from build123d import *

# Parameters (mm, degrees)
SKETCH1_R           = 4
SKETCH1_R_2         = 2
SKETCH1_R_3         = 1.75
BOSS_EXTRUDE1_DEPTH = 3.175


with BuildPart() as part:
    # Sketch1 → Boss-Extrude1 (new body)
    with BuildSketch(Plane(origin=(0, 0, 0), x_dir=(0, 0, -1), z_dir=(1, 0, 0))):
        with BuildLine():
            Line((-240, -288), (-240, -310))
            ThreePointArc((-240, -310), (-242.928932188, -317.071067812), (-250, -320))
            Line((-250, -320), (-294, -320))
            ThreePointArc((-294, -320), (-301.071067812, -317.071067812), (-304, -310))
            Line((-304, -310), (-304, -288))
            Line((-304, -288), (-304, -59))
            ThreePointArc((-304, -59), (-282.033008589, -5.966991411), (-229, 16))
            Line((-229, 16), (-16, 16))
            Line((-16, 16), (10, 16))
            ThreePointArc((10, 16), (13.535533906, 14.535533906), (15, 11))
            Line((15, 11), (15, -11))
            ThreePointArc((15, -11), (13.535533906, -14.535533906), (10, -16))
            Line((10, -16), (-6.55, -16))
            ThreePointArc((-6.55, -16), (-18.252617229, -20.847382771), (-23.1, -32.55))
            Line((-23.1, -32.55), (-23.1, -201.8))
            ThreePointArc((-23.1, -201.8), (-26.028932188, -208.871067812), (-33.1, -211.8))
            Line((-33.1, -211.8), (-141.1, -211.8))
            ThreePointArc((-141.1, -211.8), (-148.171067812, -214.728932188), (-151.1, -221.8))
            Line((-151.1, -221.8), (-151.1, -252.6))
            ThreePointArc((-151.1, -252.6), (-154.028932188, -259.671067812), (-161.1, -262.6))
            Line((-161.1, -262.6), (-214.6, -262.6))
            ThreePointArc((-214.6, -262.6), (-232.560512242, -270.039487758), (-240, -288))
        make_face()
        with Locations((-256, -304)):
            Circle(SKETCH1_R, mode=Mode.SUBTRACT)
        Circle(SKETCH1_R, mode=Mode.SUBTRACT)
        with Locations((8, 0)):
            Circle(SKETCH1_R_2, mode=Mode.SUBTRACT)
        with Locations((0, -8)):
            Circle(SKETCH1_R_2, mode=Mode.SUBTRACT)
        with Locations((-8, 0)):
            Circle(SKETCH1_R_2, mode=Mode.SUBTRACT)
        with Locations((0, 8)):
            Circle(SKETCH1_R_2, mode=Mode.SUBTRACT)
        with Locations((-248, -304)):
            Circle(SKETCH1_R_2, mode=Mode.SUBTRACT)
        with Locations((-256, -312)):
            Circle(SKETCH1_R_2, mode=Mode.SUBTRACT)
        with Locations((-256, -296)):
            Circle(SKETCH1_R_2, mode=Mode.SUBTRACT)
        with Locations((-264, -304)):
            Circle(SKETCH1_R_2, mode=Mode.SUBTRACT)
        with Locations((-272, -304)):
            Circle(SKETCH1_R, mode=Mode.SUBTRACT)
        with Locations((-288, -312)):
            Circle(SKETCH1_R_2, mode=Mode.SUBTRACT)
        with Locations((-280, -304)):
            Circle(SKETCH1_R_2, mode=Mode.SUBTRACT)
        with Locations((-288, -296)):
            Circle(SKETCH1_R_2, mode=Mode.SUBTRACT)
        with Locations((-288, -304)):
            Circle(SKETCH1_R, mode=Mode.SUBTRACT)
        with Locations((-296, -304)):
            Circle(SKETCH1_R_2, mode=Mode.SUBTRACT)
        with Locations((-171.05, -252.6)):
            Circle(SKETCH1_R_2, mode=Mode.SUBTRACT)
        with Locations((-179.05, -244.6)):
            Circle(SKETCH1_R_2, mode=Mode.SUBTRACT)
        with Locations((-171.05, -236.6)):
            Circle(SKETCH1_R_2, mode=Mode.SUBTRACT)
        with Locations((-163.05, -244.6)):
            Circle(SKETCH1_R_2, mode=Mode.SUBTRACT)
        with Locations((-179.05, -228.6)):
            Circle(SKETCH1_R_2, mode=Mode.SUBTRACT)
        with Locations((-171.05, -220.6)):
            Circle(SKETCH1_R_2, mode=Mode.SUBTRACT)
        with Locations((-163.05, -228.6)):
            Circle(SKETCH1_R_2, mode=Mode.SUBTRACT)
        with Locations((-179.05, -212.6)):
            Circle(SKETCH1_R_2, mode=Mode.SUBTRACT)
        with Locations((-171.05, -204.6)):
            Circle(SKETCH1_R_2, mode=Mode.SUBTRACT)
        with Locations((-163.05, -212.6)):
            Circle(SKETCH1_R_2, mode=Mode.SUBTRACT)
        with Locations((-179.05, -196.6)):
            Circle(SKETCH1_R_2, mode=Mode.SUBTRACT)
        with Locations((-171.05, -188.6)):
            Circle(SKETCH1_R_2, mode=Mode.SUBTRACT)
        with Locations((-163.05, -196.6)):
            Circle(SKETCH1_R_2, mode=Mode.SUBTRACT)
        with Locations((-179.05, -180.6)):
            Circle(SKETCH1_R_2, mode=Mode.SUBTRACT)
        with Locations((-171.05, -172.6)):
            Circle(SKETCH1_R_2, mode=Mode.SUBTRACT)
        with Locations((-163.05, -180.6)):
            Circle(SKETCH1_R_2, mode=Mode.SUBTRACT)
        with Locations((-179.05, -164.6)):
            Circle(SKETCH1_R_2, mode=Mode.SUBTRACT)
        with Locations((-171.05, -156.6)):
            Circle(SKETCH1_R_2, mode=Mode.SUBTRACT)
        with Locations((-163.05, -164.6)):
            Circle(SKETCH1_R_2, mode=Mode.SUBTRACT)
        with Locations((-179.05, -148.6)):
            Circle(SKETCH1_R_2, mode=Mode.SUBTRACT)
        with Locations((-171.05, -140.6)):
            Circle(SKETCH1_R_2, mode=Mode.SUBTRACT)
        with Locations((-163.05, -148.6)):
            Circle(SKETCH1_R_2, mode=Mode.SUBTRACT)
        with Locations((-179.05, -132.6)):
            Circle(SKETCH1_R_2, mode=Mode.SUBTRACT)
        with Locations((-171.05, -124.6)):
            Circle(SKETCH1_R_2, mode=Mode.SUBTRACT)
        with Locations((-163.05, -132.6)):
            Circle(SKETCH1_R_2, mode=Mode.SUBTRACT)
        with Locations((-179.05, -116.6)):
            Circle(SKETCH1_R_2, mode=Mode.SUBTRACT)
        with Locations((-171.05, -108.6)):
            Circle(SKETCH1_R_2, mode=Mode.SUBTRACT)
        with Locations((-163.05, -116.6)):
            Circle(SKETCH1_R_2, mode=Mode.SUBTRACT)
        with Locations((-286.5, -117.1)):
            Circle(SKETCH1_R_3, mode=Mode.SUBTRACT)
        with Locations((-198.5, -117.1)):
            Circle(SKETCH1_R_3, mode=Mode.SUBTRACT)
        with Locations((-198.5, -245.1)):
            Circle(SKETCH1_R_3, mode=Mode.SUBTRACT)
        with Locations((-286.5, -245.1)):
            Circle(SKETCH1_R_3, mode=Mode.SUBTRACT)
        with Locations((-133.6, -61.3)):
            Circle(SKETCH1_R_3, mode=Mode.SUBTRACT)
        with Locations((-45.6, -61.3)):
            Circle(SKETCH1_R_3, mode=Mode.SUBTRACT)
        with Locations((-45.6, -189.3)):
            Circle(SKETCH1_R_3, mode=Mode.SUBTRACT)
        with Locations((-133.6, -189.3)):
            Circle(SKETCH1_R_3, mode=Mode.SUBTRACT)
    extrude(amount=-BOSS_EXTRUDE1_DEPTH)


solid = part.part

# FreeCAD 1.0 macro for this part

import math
import FreeCAD as App
import Part
import Sketcher
Q = App.Units.Quantity

doc = App.newDocument("Part")
params = doc.addObject("Spreadsheet::Sheet", "Params")
for row, (alias, value) in enumerate([
    ("sketch1_diameter", "4 mm"),
    ("sketch1_diameter2", "8 mm"),
    ("sketch1_radius", "10 mm"),
    ("sketch1_radius2", "5 mm"),
    ("sketch1_radius3", "75 mm"),
    ("pad1_length", "3.175 mm"),
], start=1):
    params.set(f"A{row}", alias)
    params.set(f"B{row}", "=" + value)
    params.setAlias(f"B{row}", alias)

body = doc.addObject("PartDesign::Body", "Body")

# Sketch on YZ plane
sketch1 = body.newObject("Sketcher::SketchObject", "Sketch")
sketch1.AttachmentSupport = (doc.getObject("YZ_Plane"), [""])
sketch1.MapMode = "FlatFace"
sketch1.addGeometry([
    Part.LineSegment(App.Vector(-310, 240, 0), App.Vector(-288, 240, 0)),  # 0
    Part.ArcOfCircle(Part.Circle(App.Vector(-288, 214.6, 0), App.Vector(0, 0, 1), 25.4), math.radians(0), math.radians(90)),  # 1
    Part.LineSegment(App.Vector(-262.6, 214.6, 0), App.Vector(-262.6, 161.1, 0)),  # 2
    Part.ArcOfCircle(Part.Circle(App.Vector(-252.6, 161.1, 0), App.Vector(0, 0, 1), 10), math.radians(180), math.radians(270)),  # 3
    Part.LineSegment(App.Vector(-252.6, 151.1, 0), App.Vector(-221.8, 151.1, 0)),  # 4
    Part.ArcOfCircle(Part.Circle(App.Vector(-221.8, 141.1, 0), App.Vector(0, 0, 1), 10), math.radians(0), math.radians(90)),  # 5
    Part.LineSegment(App.Vector(-211.8, 141.1, 0), App.Vector(-211.8, 33.1, 0)),  # 6
    Part.ArcOfCircle(Part.Circle(App.Vector(-201.8, 33.1, 0), App.Vector(0, 0, 1), 10), math.radians(180), math.radians(270)),  # 7
    Part.LineSegment(App.Vector(-201.8, 23.1, 0), App.Vector(-32.5, 23.1, 0)),  # 8
    Part.ArcOfCircle(Part.Circle(App.Vector(-32.5, 6.6, 0), App.Vector(0, 0, 1), 16.5), math.radians(0), math.radians(90)),  # 9
    Part.LineSegment(App.Vector(-16, 6.5, 0), App.Vector(-16, -10, 0)),  # 10
    Part.ArcOfCircle(Part.Circle(App.Vector(-11, -10, 0), App.Vector(0, 0, 1), 5), math.radians(180), math.radians(270)),  # 11
    Part.LineSegment(App.Vector(-11, -15, 0), App.Vector(11, -15, 0)),  # 12
    Part.ArcOfCircle(Part.Circle(App.Vector(11, -10, 0), App.Vector(0, 0, 1), 5), math.radians(-90), math.radians(0)),  # 13
    Part.LineSegment(App.Vector(16, -10, 0), App.Vector(16, 229, 0)),  # 14
    Part.ArcOfCircle(Part.Circle(App.Vector(-59, 229, 0), App.Vector(0, 0, 1), 75), math.radians(0), math.radians(90)),  # 15
    Part.LineSegment(App.Vector(-59, 304, 0), App.Vector(-310, 304, 0)),  # 16
    Part.ArcOfCircle(Part.Circle(App.Vector(-310, 294, 0), App.Vector(0, 0, 1), 10), math.radians(90), math.radians(180)),  # 17
    Part.LineSegment(App.Vector(-320, 294, 0), App.Vector(-320, 250, 0)),  # 18
    Part.ArcOfCircle(Part.Circle(App.Vector(-310, 250, 0), App.Vector(0, 0, 1), 10), math.radians(180), math.radians(270)),  # 19
    Part.Circle(App.Vector(-189.3, 45.6, 0), App.Vector(0, 0, 1), 1.8),  # 20
    Part.Circle(App.Vector(-189.3, 133.6, 0), App.Vector(0, 0, 1), 1.8),  # 21
    Part.Circle(App.Vector(-244.6, 163.1, 0), App.Vector(0, 0, 1), 2),  # 22
    Part.Circle(App.Vector(-252.6, 171.1, 0), App.Vector(0, 0, 1), 2),  # 23
    Part.Circle(App.Vector(-244.6, 179.1, 0), App.Vector(0, 0, 1), 2),  # 24
    Part.Circle(App.Vector(-236.6, 171.1, 0), App.Vector(0, 0, 1), 2),  # 25
    Part.Circle(App.Vector(-245.1, 198.5, 0), App.Vector(0, 0, 1), 1.8),  # 26
    Part.Circle(App.Vector(-304, 248, 0), App.Vector(0, 0, 1), 2),  # 27
    Part.Circle(App.Vector(-312, 256, 0), App.Vector(0, 0, 1), 2),  # 28
    Part.Circle(App.Vector(-304, 256, 0), App.Vector(0, 0, 1), 4),  # 29
    Part.Circle(App.Vector(-296, 256, 0), App.Vector(0, 0, 1), 2),  # 30
    Part.Circle(App.Vector(-304, 264, 0), App.Vector(0, 0, 1), 2),  # 31
    Part.Circle(App.Vector(-304, 272, 0), App.Vector(0, 0, 1), 4),  # 32
    Part.Circle(App.Vector(-312, 288, 0), App.Vector(0, 0, 1), 2),  # 33
    Part.Circle(App.Vector(-304, 280, 0), App.Vector(0, 0, 1), 2),  # 34
    Part.Circle(App.Vector(-304, 288, 0), App.Vector(0, 0, 1), 4),  # 35
    Part.Circle(App.Vector(-304, 296, 0), App.Vector(0, 0, 1), 2),  # 36
    Part.Circle(App.Vector(-296, 288, 0), App.Vector(0, 0, 1), 2),  # 37
    Part.Circle(App.Vector(-245.1, 286.5, 0), App.Vector(0, 0, 1), 1.8),  # 38
    Part.Circle(App.Vector(-228.6, 163.1, 0), App.Vector(0, 0, 1), 2),  # 39
    Part.Circle(App.Vector(-228.6, 179.1, 0), App.Vector(0, 0, 1), 2),  # 40
    Part.Circle(App.Vector(-220.6, 171.1, 0), App.Vector(0, 0, 1), 2),  # 41
    Part.Circle(App.Vector(-212.6, 163.1, 0), App.Vector(0, 0, 1), 2),  # 42
    Part.Circle(App.Vector(-196.6, 163.1, 0), App.Vector(0, 0, 1), 2),  # 43
    Part.Circle(App.Vector(-204.6, 171.1, 0), App.Vector(0, 0, 1), 2),  # 44
    Part.Circle(App.Vector(-212.6, 179.1, 0), App.Vector(0, 0, 1), 2),  # 45
    Part.Circle(App.Vector(-196.6, 179.1, 0), App.Vector(0, 0, 1), 2),  # 46
    Part.Circle(App.Vector(-180.6, 163.1, 0), App.Vector(0, 0, 1), 2),  # 47
    Part.Circle(App.Vector(-188.6, 171.1, 0), App.Vector(0, 0, 1), 2),  # 48
    Part.Circle(App.Vector(-172.6, 171.1, 0), App.Vector(0, 0, 1), 2),  # 49
    Part.Circle(App.Vector(-180.6, 179.1, 0), App.Vector(0, 0, 1), 2),  # 50
    Part.Circle(App.Vector(-164.6, 163.1, 0), App.Vector(0, 0, 1), 2),  # 51
    Part.Circle(App.Vector(-164.6, 179.1, 0), App.Vector(0, 0, 1), 2),  # 52
    Part.Circle(App.Vector(-156.6, 171.1, 0), App.Vector(0, 0, 1), 2),  # 53
    Part.Circle(App.Vector(-61.3, 45.6, 0), App.Vector(0, 0, 1), 1.8),  # 54
    Part.Circle(App.Vector(-8, 0, 0), App.Vector(0, 0, 1), 2),  # 55
    Part.Circle(App.Vector(0, -8, 0), App.Vector(0, 0, 1), 2),  # 56
    Part.Circle(App.Vector(0, 0, 0), App.Vector(0, 0, 1), 4),  # 57
    Part.Circle(App.Vector(0, 8, 0), App.Vector(0, 0, 1), 2),  # 58
    Part.Circle(App.Vector(8, 0, 0), App.Vector(0, 0, 1), 2),  # 59
    Part.Circle(App.Vector(-61.3, 133.6, 0), App.Vector(0, 0, 1), 1.8),  # 60
    Part.Circle(App.Vector(-148.6, 163.1, 0), App.Vector(0, 0, 1), 2),  # 61
    Part.Circle(App.Vector(-132.6, 163.1, 0), App.Vector(0, 0, 1), 2),  # 62
    Part.Circle(App.Vector(-148.6, 179.1, 0), App.Vector(0, 0, 1), 2),  # 63
    Part.Circle(App.Vector(-140.6, 171.1, 0), App.Vector(0, 0, 1), 2),  # 64
    Part.Circle(App.Vector(-132.6, 179.1, 0), App.Vector(0, 0, 1), 2),  # 65
    Part.Circle(App.Vector(-116.6, 163.1, 0), App.Vector(0, 0, 1), 2),  # 66
    Part.Circle(App.Vector(-124.6, 171.1, 0), App.Vector(0, 0, 1), 2),  # 67
    Part.Circle(App.Vector(-116.6, 179.1, 0), App.Vector(0, 0, 1), 2),  # 68
    Part.Circle(App.Vector(-117.1, 198.5, 0), App.Vector(0, 0, 1), 1.8),  # 69
    Part.Circle(App.Vector(-108.6, 171.1, 0), App.Vector(0, 0, 1), 2),  # 70
    Part.Circle(App.Vector(-117.1, 286.5, 0), App.Vector(0, 0, 1), 1.8),  # 71
], False)
sketch1.addConstraint([
    Sketcher.Constraint("Tangent", 0, 2, 1, 2),
    Sketcher.Constraint("Tangent", 1, 1, 2, 1),
    Sketcher.Constraint("Tangent", 2, 2, 3, 1),
    Sketcher.Constraint("Tangent", 3, 2, 4, 1),
    Sketcher.Constraint("Tangent", 4, 2, 5, 2),
    Sketcher.Constraint("Tangent", 5, 1, 6, 1),
    Sketcher.Constraint("Tangent", 6, 2, 7, 1),
    Sketcher.Constraint("Tangent", 7, 2, 8, 1),
    Sketcher.Constraint("Tangent", 8, 2, 9, 2),
    Sketcher.Constraint("Tangent", 9, 1, 10, 1),
    Sketcher.Constraint("Tangent", 10, 2, 11, 1),
    Sketcher.Constraint("Tangent", 11, 2, 12, 1),
    Sketcher.Constraint("Tangent", 12, 2, 13, 1),
    Sketcher.Constraint("Tangent", 13, 2, 14, 1),
    Sketcher.Constraint("Tangent", 14, 2, 15, 1),
    Sketcher.Constraint("Tangent", 15, 2, 16, 1),
    Sketcher.Constraint("Tangent", 16, 2, 17, 1),
    Sketcher.Constraint("Tangent", 17, 2, 18, 1),
    Sketcher.Constraint("Tangent", 18, 2, 19, 1),
    Sketcher.Constraint("Tangent", 19, 2, 0, 1),
    Sketcher.Constraint("Horizontal", 0),
    Sketcher.Constraint("Vertical", 2),
    Sketcher.Constraint("Horizontal", 4),
    Sketcher.Constraint("Vertical", 6),
    Sketcher.Constraint("Horizontal", 8),
    Sketcher.Constraint("Vertical", 10),
    Sketcher.Constraint("Horizontal", 12),
    Sketcher.Constraint("Vertical", 14),
    Sketcher.Constraint("Horizontal", 16),
    Sketcher.Constraint("Vertical", 18),
    Sketcher.Constraint("Coincident", 57, 3, -1, 1),
    Sketcher.Constraint("Equal", 3, 5),
    Sketcher.Constraint("Equal", 5, 7),
    Sketcher.Constraint("Equal", 11, 13),
    Sketcher.Constraint("Equal", 7, 17),
    Sketcher.Constraint("Equal", 17, 19),
    Sketcher.Constraint("Equal", 20, 21),
    Sketcher.Constraint("Equal", 22, 23),
    Sketcher.Constraint("Equal", 23, 24),
    Sketcher.Constraint("Equal", 24, 25),
    Sketcher.Constraint("Equal", 21, 26),
    Sketcher.Constraint("Equal", 25, 27),
    Sketcher.Constraint("Equal", 27, 28),
    Sketcher.Constraint("Equal", 28, 30),
    Sketcher.Constraint("Equal", 30, 31),
    Sketcher.Constraint("Equal", 29, 32),
    Sketcher.Constraint("Equal", 31, 33),
    Sketcher.Constraint("Equal", 33, 34),
    Sketcher.Constraint("Equal", 32, 35),
    Sketcher.Constraint("Equal", 34, 36),
    Sketcher.Constraint("Equal", 36, 37),
    Sketcher.Constraint("Equal", 26, 38),
    Sketcher.Constraint("Equal", 37, 39),
    Sketcher.Constraint("Equal", 39, 40),
    Sketcher.Constraint("Equal", 40, 41),
    Sketcher.Constraint("Equal", 41, 42),
    Sketcher.Constraint("Equal", 42, 43),
    Sketcher.Constraint("Equal", 43, 44),
    Sketcher.Constraint("Equal", 44, 45),
    Sketcher.Constraint("Equal", 45, 46),
    Sketcher.Constraint("Equal", 46, 47),
    Sketcher.Constraint("Equal", 47, 48),
    Sketcher.Constraint("Equal", 48, 49),
    Sketcher.Constraint("Equal", 49, 50),
    Sketcher.Constraint("Equal", 50, 51),
    Sketcher.Constraint("Equal", 51, 52),
    Sketcher.Constraint("Equal", 52, 53),
    Sketcher.Constraint("Equal", 38, 54),
    Sketcher.Constraint("Equal", 53, 55),
    Sketcher.Constraint("Equal", 55, 56),
    Sketcher.Constraint("Equal", 35, 57),
    Sketcher.Constraint("Equal", 56, 58),
    Sketcher.Constraint("Equal", 58, 59),
    Sketcher.Constraint("Equal", 54, 60),
    Sketcher.Constraint("Equal", 59, 61),
    Sketcher.Constraint("Equal", 61, 62),
    Sketcher.Constraint("Equal", 62, 63),
    Sketcher.Constraint("Equal", 63, 64),
    Sketcher.Constraint("Equal", 64, 65),
    Sketcher.Constraint("Equal", 65, 66),
    Sketcher.Constraint("Equal", 66, 67),
    Sketcher.Constraint("Equal", 67, 68),
    Sketcher.Constraint("Equal", 60, 69),
    Sketcher.Constraint("Equal", 68, 70),
    Sketcher.Constraint("Equal", 69, 71),
    Sketcher.Constraint("Symmetric", 56, 3, 58, 3, -1, 1),
    Sketcher.Constraint("Symmetric", 55, 3, 59, 3, -1, 1),
    Sketcher.Constraint("PointOnObject", 55, 3, -1),
    Sketcher.Constraint("PointOnObject", 56, 3, -2),
    Sketcher.Constraint("Horizontal", 23, 3, 25, 3),
    Sketcher.Constraint("Horizontal", 28, 3, 29, 3),
    Sketcher.Constraint("Horizontal", 29, 3, 30, 3),
    Sketcher.Constraint("Horizontal", 33, 3, 35, 3),
    Sketcher.Constraint("Horizontal", 35, 3, 37, 3),
    Sketcher.Constraint("Horizontal", 22, 3, 39, 3),
    Sketcher.Constraint("Horizontal", 24, 3, 40, 3),
    Sketcher.Constraint("Horizontal", 25, 3, 41, 3),
    Sketcher.Constraint("Horizontal", 39, 3, 42, 3),
    Sketcher.Constraint("Horizontal", 42, 3, 43, 3),
    Sketcher.Constraint("Horizontal", 41, 3, 44, 3),
    Sketcher.Constraint("Horizontal", 40, 3, 45, 3),
    Sketcher.Constraint("Horizontal", 45, 3, 46, 3),
    Sketcher.Constraint("Horizontal", 43, 3, 47, 3),
    Sketcher.Constraint("Horizontal", 44, 3, 48, 3),
    Sketcher.Constraint("Horizontal", 48, 3, 49, 3),
    Sketcher.Constraint("Horizontal", 46, 3, 50, 3),
    Sketcher.Constraint("Horizontal", 47, 3, 51, 3),
    Sketcher.Constraint("Horizontal", 50, 3, 52, 3),
    Sketcher.Constraint("Horizontal", 49, 3, 53, 3),
    Sketcher.Constraint("Horizontal", 20, 3, 54, 3),
    Sketcher.Constraint("Horizontal", 21, 3, 60, 3),
    Sketcher.Constraint("Horizontal", 51, 3, 61, 3),
    Sketcher.Constraint("Horizontal", 61, 3, 62, 3),
    Sketcher.Constraint("Horizontal", 52, 3, 63, 3),
    Sketcher.Constraint("Horizontal", 53, 3, 64, 3),
    Sketcher.Constraint("Horizontal", 63, 3, 65, 3),
    Sketcher.Constraint("Horizontal", 62, 3, 66, 3),
    Sketcher.Constraint("Horizontal", 64, 3, 67, 3),
    Sketcher.Constraint("Horizontal", 65, 3, 68, 3),
    Sketcher.Constraint("Horizontal", 26, 3, 69, 3),
    Sketcher.Constraint("Horizontal", 67, 3, 70, 3),
    Sketcher.Constraint("Horizontal", 38, 3, 71, 3),
    Sketcher.Constraint("Vertical", 20, 3, 21, 3),
    Sketcher.Constraint("Vertical", 3, 3, 23, 3),
    Sketcher.Constraint("Vertical", 22, 3, 24, 3),
    Sketcher.Constraint("Vertical", 27, 3, 29, 3),
    Sketcher.Constraint("Vertical", 29, 3, 31, 3),
    Sketcher.Constraint("Vertical", 31, 3, 32, 3),
    Sketcher.Constraint("Vertical", 28, 3, 33, 3),
    Sketcher.Constraint("Vertical", 32, 3, 34, 3),
    Sketcher.Constraint("Vertical", 34, 3, 35, 3),
    Sketcher.Constraint("Vertical", 35, 3, 36, 3),
    Sketcher.Constraint("Vertical", 30, 3, 37, 3),
    Sketcher.Constraint("Vertical", 26, 3, 38, 3),
    Sketcher.Constraint("Vertical", 39, 3, 40, 3),
    Sketcher.Constraint("Vertical", 42, 3, 45, 3),
    Sketcher.Constraint("Vertical", 43, 3, 46, 3),
    Sketcher.Constraint("Vertical", 47, 3, 50, 3),
    Sketcher.Constraint("Vertical", 51, 3, 52, 3),
    Sketcher.Constraint("Vertical", 54, 3, 60, 3),
    Sketcher.Constraint("Vertical", 61, 3, 63, 3),
    Sketcher.Constraint("Vertical", 62, 3, 65, 3),
    Sketcher.Constraint("Vertical", 66, 3, 68, 3),
    Sketcher.Constraint("Vertical", 69, 3, 71, 3),
    Sketcher.Constraint("Equal", 0, 12),
    Sketcher.Constraint("Diameter", 22, Q("4 mm")),
    Sketcher.Constraint("Diameter", 29, Q("8 mm")),
    Sketcher.Constraint("Radius", 3, Q("10 mm")),
    Sketcher.Constraint("Radius", 11, Q("5 mm")),
    Sketcher.Constraint("Radius", 15, Q("75 mm")),
    Sketcher.Constraint("Diameter", 20, Q("3.5 mm")),
    Sketcher.Constraint("Radius", 1, Q("25.4 mm")),
    Sketcher.Constraint("DistanceX", 0, 1, 0, 2, Q("22 mm")),
    Sketcher.Constraint("DistanceX", 16, 2, 16, 1, Q("251 mm")),
    Sketcher.Constraint("DistanceY", 6, 2, 6, 1, Q("108 mm")),
    Sketcher.Constraint("DistanceY", 14, 1, 14, 2, Q("239 mm")),
    Sketcher.Constraint("DistanceY", 18, 2, 18, 1, Q("44 mm")),
    Sketcher.Constraint("Radius", 9, Q("16.55 mm")),
    Sketcher.Constraint("DistanceX", 4, 1, 4, 2, Q("30.8 mm")),
    Sketcher.Constraint("DistanceY", 2, 2, 2, 1, Q("53.5 mm")),
    Sketcher.Constraint("DistanceX", 1, 3, -1, 1, Q("288 mm")),
    Sketcher.Constraint("DistanceY", 11, 3, -1, 1, Q("10 mm")),
    Sketcher.Constraint("DistanceX", 27, 3, -1, 1, Q("304 mm")),
    Sketcher.Constraint("DistanceY", -1, 1, 27, 3, Q("248 mm")),
    Sketcher.Constraint("DistanceX", 28, 3, -1, 1, Q("312 mm")),
    Sketcher.Constraint("DistanceY", -1, 1, 28, 3, Q("256 mm")),
    Sketcher.Constraint("DistanceX", 30, 3, -1, 1, Q("296 mm")),
    Sketcher.Constraint("DistanceY", -1, 1, 31, 3, Q("264 mm")),
    Sketcher.Constraint("DistanceY", -1, 1, 32, 3, Q("272 mm")),
    Sketcher.Constraint("DistanceY", -1, 1, 33, 3, Q("288 mm")),
    Sketcher.Constraint("DistanceY", -1, 1, 34, 3, Q("280 mm")),
    Sketcher.Constraint("DistanceY", -1, 1, 36, 3, Q("296 mm")),
    Sketcher.Constraint("DistanceX", 55, 3, -1, 1, Q("8 mm")),
    Sketcher.Constraint("DistanceY", 56, 3, -1, 1, Q("8 mm")),
    Sketcher.Constraint("DistanceX", 20, 3, -1, 1, Q("189.3 mm")),
    Sketcher.Constraint("DistanceY", -1, 1, 20, 3, Q("45.6 mm")),
    Sketcher.Constraint("DistanceY", -1, 1, 21, 3, Q("133.6 mm")),
    Sketcher.Constraint("DistanceX", 22, 3, -1, 1, Q("244.6 mm")),
    Sketcher.Constraint("DistanceX", 25, 3, -1, 1, Q("236.6 mm")),
    Sketcher.Constraint("DistanceX", 26, 3, -1, 1, Q("245.1 mm")),
    Sketcher.Constraint("DistanceY", -1, 1, 26, 3, Q("198.5 mm")),
    Sketcher.Constraint("DistanceY", -1, 1, 38, 3, Q("286.5 mm")),
    Sketcher.Constraint("DistanceX", 39, 3, -1, 1, Q("228.6 mm")),
    Sketcher.Constraint("DistanceX", 41, 3, -1, 1, Q("220.6 mm")),
    Sketcher.Constraint("DistanceX", 42, 3, -1, 1, Q("212.6 mm")),
    Sketcher.Constraint("DistanceX", 43, 3, -1, 1, Q("196.6 mm")),
    Sketcher.Constraint("DistanceX", 44, 3, -1, 1, Q("204.6 mm")),
    Sketcher.Constraint("DistanceX", 47, 3, -1, 1, Q("180.6 mm")),
    Sketcher.Constraint("DistanceX", 48, 3, -1, 1, Q("188.6 mm")),
    Sketcher.Constraint("DistanceX", 49, 3, -1, 1, Q("172.6 mm")),
    Sketcher.Constraint("DistanceX", 51, 3, -1, 1, Q("164.6 mm")),
    Sketcher.Constraint("DistanceX", 53, 3, -1, 1, Q("156.6 mm")),
    Sketcher.Constraint("DistanceX", 54, 3, -1, 1, Q("61.3 mm")),
    Sketcher.Constraint("DistanceX", 61, 3, -1, 1, Q("148.6 mm")),
    Sketcher.Constraint("DistanceX", 62, 3, -1, 1, Q("132.6 mm")),
    Sketcher.Constraint("DistanceX", 64, 3, -1, 1, Q("140.6 mm")),
    Sketcher.Constraint("DistanceX", 66, 3, -1, 1, Q("116.6 mm")),
    Sketcher.Constraint("DistanceX", 67, 3, -1, 1, Q("124.6 mm")),
    Sketcher.Constraint("DistanceX", 69, 3, -1, 1, Q("117.1 mm")),
    Sketcher.Constraint("DistanceX", 70, 3, -1, 1, Q("108.6 mm")),
    Sketcher.Constraint("DistanceY", -1, 1, 22, 3, Q("163.05 mm")),
    Sketcher.Constraint("DistanceY", -1, 1, 23, 3, Q("171.05 mm")),
    Sketcher.Constraint("DistanceY", -1, 1, 24, 3, Q("179.05 mm")),
])
sketch1.setExpression("Constraints[145]", "Params.sketch1_diameter")
sketch1.setExpression("Constraints[146]", "Params.sketch1_diameter2")
sketch1.setExpression("Constraints[147]", "Params.sketch1_radius")
sketch1.setExpression("Constraints[148]", "Params.sketch1_radius2")
sketch1.setExpression("Constraints[149]", "Params.sketch1_radius3")
pad1 = body.newObject("PartDesign::Pad", "Pad")
pad1.Profile = sketch1
pad1.setExpression("Length", "Params.pad1_length")
pad1.Reversed = True

doc.recompute()
